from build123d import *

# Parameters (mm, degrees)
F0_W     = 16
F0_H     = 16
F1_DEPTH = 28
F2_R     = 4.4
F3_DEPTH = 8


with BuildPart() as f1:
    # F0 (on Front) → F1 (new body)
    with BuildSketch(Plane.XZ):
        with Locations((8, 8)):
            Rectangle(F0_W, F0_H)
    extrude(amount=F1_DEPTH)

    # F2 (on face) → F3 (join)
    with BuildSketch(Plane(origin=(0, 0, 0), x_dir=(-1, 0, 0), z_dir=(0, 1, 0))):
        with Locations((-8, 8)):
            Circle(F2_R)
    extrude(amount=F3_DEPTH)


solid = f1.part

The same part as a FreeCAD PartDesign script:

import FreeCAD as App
import Part
import Sketcher
Q = App.Units.Quantity


def add_polygon(sketch, points):
    """Adds a closed chain of lines whose ends are joined by coincident constraints."""
    first, n = sketch.GeometryCount, len(points)
    for a, b in zip(points, points[1:] + points[:1]):
        sketch.addGeometry(Part.LineSegment(App.Vector(*a, 0), App.Vector(*b, 0)), False)
    for i in range(n):
        sketch.addConstraint(Sketcher.Constraint("Coincident", first + i, 2, first + (i + 1) % n, 1))

doc = App.newDocument("Part")
body = doc.addObject("PartDesign::Body", "Body")

# Sketch on XZ plane
sketch1 = body.newObject("Sketcher::SketchObject", "Sketch")
sketch1.AttachmentSupport = (doc.getObject("XZ_Plane"), [""])
sketch1.MapMode = "FlatFace"
add_polygon(sketch1, [(0, 16), (0, 0), (16, 0), (16, 16)])  # lines 0-3
sketch1.addConstraint(Sketcher.Constraint("Vertical", 0))
sketch1.addConstraint(Sketcher.Constraint("Horizontal", 1))
sketch1.addConstraint(Sketcher.Constraint("Vertical", 2))
sketch1.addConstraint(Sketcher.Constraint("Horizontal", 3))
sketch1.addConstraint(Sketcher.Constraint("Coincident", 0, 2, -1, 1))
sketch1.addConstraint(Sketcher.Constraint("Equal", 3, 0))
sketch1.addConstraint(Sketcher.Constraint("DistanceX", 1, 1, 1, 2, Q("16 mm")))
pad1 = body.newObject("PartDesign::Pad", "Pad")
pad1.Profile = sketch1
pad1.Length = 28

# Sketch on XZ plane
sketch2 = body.newObject("Sketcher::SketchObject", "Sketch001")
sketch2.AttachmentSupport = (doc.getObject("XZ_Plane"), [""])
sketch2.MapMode = "FlatFace"
sketch2.addGeometry(Part.Circle(App.Vector(8, 8, 0), App.Vector(0, 0, 1), 4.4), False)
sketch2.addConstraint(Sketcher.Constraint("Diameter", 0, Q("8.8 mm")))
sketch2.addConstraint(Sketcher.Constraint("DistanceX", -1, 1, 0, 3, Q("8 mm")))
sketch2.addConstraint(Sketcher.Constraint("DistanceY", -1, 1, 0, 3, Q("8 mm")))
pad2 = body.newObject("PartDesign::Pad", "Pad001")
pad2.Profile = sketch2
pad2.Length = 8
pad2.Reversed = True

doc.recompute()
